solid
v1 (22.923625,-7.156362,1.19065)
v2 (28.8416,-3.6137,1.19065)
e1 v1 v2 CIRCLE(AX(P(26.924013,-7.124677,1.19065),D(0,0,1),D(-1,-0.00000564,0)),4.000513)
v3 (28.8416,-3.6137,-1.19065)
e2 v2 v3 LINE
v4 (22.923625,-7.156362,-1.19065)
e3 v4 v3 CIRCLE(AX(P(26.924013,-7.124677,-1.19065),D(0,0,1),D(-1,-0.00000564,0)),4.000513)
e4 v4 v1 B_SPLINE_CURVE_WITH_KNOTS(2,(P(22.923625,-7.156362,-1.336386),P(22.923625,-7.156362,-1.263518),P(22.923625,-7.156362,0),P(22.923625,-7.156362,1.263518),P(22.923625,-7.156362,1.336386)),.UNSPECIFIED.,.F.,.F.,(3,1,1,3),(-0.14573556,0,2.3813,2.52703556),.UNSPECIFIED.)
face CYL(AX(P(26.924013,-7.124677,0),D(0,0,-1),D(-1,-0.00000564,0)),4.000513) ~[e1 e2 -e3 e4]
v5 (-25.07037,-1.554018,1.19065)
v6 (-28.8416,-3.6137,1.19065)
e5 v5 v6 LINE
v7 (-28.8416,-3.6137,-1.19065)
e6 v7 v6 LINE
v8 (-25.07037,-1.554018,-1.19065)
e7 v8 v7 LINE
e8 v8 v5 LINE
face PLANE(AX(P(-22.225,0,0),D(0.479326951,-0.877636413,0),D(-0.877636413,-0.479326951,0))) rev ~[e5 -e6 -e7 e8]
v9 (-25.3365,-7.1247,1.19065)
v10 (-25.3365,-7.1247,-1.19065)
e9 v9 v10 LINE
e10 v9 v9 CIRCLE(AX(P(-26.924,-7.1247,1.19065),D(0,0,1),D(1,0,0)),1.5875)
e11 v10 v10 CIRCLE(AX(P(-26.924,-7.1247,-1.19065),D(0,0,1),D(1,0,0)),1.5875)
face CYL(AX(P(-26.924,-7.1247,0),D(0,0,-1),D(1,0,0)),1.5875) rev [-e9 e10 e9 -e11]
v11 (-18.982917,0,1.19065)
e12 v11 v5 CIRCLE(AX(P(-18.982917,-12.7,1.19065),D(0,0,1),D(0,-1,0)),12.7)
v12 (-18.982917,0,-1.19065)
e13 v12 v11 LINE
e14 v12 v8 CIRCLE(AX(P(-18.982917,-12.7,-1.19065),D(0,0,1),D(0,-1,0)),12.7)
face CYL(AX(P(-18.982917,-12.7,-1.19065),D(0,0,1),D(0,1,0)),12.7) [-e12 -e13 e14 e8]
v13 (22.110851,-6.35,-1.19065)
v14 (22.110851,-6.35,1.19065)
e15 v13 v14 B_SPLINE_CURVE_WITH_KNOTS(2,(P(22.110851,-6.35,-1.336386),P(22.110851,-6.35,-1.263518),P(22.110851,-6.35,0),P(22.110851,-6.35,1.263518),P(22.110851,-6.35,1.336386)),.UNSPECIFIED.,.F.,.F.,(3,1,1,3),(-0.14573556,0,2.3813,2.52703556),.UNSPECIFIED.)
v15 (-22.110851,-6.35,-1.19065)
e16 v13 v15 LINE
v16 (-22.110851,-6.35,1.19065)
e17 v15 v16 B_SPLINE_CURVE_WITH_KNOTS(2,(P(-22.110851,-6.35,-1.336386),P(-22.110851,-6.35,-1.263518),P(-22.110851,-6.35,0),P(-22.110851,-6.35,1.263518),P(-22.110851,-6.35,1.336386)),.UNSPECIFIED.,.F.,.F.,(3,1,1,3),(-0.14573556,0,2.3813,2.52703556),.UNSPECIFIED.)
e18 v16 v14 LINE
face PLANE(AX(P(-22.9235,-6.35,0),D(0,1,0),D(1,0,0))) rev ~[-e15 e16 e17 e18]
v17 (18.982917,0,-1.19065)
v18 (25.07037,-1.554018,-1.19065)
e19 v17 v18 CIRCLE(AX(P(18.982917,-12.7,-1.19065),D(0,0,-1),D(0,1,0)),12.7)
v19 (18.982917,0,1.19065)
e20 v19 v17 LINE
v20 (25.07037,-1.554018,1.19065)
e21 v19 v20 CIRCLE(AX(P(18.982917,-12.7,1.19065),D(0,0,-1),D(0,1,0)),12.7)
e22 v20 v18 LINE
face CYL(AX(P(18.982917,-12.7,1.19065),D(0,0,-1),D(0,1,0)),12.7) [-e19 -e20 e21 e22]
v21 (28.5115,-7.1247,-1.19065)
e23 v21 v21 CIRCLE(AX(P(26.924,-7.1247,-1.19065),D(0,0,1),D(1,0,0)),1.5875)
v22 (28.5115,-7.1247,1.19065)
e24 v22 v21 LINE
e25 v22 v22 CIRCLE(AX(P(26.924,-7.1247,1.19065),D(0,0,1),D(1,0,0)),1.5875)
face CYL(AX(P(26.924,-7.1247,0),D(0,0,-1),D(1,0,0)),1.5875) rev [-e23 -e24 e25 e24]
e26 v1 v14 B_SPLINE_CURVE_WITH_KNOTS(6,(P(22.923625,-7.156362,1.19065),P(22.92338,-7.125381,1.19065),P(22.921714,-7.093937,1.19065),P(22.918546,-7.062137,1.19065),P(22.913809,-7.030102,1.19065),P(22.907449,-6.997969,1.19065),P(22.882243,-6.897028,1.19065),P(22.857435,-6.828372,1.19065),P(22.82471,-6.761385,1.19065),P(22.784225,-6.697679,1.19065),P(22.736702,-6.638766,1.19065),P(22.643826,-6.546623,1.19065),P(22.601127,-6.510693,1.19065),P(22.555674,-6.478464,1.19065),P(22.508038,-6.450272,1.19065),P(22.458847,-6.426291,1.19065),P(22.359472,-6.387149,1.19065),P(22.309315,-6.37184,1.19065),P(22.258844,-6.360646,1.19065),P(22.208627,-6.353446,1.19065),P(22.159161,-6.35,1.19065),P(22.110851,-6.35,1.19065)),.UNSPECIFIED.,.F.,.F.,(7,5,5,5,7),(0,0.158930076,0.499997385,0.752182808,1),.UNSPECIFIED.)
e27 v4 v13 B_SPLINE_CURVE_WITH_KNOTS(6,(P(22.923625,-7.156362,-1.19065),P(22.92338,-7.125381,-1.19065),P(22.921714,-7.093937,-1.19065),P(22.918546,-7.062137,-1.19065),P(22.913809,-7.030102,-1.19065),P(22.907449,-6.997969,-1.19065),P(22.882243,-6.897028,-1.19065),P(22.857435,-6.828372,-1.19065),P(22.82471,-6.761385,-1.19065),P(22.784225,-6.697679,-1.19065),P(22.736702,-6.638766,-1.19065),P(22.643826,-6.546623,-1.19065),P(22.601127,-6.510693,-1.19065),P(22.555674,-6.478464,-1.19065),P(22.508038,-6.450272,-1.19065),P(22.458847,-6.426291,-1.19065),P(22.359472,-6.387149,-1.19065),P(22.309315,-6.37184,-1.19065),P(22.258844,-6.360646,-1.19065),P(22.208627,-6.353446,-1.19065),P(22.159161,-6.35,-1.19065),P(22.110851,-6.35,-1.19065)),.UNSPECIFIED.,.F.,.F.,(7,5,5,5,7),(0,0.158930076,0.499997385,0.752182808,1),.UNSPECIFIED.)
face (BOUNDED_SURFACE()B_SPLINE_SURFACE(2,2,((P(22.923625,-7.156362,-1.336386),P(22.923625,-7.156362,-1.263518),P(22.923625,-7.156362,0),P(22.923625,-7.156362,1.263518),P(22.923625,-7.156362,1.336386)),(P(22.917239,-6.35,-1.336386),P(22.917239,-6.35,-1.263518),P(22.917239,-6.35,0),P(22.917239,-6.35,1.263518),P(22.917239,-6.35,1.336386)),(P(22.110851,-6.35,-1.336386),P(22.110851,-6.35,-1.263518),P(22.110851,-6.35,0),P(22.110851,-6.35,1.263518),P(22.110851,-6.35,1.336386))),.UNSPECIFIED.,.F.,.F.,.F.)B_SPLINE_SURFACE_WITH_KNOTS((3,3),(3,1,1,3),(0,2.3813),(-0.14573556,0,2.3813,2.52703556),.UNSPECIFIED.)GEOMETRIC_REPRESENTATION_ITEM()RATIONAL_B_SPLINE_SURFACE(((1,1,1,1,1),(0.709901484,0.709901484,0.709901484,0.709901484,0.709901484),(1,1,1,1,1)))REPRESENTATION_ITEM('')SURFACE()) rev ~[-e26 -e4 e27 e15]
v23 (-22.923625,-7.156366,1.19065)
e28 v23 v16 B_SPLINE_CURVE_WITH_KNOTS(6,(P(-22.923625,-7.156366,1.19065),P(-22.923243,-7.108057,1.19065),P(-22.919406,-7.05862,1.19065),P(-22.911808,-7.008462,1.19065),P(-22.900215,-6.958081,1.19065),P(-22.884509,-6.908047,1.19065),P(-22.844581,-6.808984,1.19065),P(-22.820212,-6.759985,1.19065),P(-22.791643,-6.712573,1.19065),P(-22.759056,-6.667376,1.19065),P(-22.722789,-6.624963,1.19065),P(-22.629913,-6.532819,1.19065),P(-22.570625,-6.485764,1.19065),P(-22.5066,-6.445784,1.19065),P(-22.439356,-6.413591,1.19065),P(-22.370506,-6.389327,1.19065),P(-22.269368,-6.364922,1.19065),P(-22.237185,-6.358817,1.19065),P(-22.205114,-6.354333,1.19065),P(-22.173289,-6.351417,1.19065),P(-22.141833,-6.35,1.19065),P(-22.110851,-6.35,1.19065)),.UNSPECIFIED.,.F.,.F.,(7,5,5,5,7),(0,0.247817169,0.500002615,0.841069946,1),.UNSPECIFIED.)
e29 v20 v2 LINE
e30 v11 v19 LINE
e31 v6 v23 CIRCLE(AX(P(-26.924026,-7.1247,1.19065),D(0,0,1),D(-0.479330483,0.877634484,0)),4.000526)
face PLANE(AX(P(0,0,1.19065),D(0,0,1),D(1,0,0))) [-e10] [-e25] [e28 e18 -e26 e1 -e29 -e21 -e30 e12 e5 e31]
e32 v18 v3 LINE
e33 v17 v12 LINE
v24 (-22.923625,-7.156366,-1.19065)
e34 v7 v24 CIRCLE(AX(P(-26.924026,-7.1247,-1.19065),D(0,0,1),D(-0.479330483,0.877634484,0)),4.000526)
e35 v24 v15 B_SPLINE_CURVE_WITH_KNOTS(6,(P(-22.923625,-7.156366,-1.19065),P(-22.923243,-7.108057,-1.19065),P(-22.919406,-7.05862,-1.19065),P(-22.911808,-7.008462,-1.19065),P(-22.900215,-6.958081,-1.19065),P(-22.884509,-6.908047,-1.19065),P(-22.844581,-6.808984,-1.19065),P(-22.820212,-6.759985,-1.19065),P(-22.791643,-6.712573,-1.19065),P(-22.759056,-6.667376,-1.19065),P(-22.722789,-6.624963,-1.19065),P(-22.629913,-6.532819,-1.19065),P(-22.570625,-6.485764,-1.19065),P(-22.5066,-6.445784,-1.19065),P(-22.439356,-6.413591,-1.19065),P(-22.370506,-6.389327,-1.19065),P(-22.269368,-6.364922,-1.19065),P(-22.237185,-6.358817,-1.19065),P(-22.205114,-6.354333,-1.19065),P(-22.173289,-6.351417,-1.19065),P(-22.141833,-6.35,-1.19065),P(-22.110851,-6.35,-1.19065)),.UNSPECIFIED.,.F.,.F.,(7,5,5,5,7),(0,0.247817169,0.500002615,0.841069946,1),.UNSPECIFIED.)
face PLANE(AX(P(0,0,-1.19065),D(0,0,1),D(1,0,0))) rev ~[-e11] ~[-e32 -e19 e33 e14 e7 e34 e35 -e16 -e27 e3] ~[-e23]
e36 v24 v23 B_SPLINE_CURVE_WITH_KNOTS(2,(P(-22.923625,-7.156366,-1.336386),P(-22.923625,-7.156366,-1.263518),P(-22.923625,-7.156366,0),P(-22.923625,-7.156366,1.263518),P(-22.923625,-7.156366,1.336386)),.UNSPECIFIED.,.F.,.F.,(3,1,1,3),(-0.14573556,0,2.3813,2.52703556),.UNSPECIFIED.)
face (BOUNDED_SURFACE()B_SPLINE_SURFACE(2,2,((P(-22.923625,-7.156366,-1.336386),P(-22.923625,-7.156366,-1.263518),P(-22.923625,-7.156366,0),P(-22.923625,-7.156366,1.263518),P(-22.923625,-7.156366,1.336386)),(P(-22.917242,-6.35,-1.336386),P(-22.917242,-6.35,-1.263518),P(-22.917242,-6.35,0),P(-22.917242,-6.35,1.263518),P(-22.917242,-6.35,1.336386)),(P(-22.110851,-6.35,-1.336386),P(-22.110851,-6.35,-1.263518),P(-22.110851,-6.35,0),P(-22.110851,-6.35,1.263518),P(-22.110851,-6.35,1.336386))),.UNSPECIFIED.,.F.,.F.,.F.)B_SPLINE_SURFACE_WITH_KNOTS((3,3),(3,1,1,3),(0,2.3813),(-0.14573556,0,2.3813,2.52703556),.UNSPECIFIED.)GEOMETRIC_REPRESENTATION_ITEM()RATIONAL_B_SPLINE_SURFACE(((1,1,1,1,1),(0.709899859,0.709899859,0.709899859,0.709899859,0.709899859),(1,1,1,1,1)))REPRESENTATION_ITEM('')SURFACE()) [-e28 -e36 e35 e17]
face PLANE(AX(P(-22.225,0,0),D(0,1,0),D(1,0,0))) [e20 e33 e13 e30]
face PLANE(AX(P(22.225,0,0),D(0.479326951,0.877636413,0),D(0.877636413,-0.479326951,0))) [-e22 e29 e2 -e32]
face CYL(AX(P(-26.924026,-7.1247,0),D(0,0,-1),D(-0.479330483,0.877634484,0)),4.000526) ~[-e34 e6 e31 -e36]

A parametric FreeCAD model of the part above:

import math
import FreeCAD as App
import Part
import Sketcher
from FreeCAD import Vector
Q = App.Units.Quantity


def edges_at(feature, points):
    """Names of the edges that pass closest to the given points."""
    edges = feature.Shape.Edges
    near = lambda p: min(range(len(edges)), key=lambda i: edges[i].distToShape(Part.Vertex(*p))[0])
    return sorted({f"Edge{near(p) + 1}" for p in points})

doc = App.newDocument("Part")
body = doc.addObject("PartDesign::Body", "Body")

sketch1 = body.newObject("Sketcher::SketchObject", "Sketch")
sketch1.AttachmentSupport = (doc.getObject("XY_Plane"), [""])
sketch1.MapMode = "FlatFace"
sketch1.addGeometry([
    Part.LineSegment(Vector(-22.2, 0, 0), Vector(-28.8, -3.6, 0)),
    Part.ArcOfCircle(Part.Circle(Vector(-26.9, -7.1, 0), Vector(0, 0, 1), 4), math.radians(119), math.radians(360)),
    Part.LineSegment(Vector(-22.9, -7.1, 0), Vector(-22.9, -6.3, 0)),
    Part.LineSegment(Vector(-22.9, -6.3, 0), Vector(22.9, -6.3, 0)),
    Part.LineSegment(Vector(22.9, -6.3, 0), Vector(22.9, -7.1, 0)),
    Part.ArcOfCircle(Part.Circle(Vector(26.9, -7.1, 0), Vector(0, 0, 1), 4), math.radians(180), math.radians(421)),
    Part.LineSegment(Vector(28.8, -3.6, 0), Vector(22.2, 0, 0)),
    Part.LineSegment(Vector(22.2, 0, 0), Vector(-22.2, 0, 0)),
    Part.Circle(Vector(-26.9, -7.1, 0), Vector(0, 0, 1), 1.6),
    Part.Circle(Vector(26.9, -7.1, 0), Vector(0, 0, 1), 1.6),
], False)
sketch1.addConstraint([
    Sketcher.Constraint("Tangent", 0, 2, 1, 1),
    Sketcher.Constraint("Tangent", 1, 2, 2, 1),
    Sketcher.Constraint("Coincident", 2, 2, 3, 1),
    Sketcher.Constraint("Coincident", 3, 2, 4, 1),
    Sketcher.Constraint("Tangent", 4, 2, 5, 1),
    Sketcher.Constraint("Tangent", 5, 2, 6, 1),
    Sketcher.Constraint("Coincident", 6, 2, 7, 1),
    Sketcher.Constraint("Coincident", 7, 2, 0, 1),
    Sketcher.Constraint("Vertical", 2),
    Sketcher.Constraint("Horizontal", 3),
    Sketcher.Constraint("Vertical", 4),
    Sketcher.Constraint("Horizontal", 7),
    Sketcher.Constraint("Coincident", 8, 3, 1, 3),
    Sketcher.Constraint("Coincident", 9, 3, 5, 3),
    Sketcher.Constraint("Equal", 1, 5),
    Sketcher.Constraint("Equal", 8, 9),
    Sketcher.Constraint("Symmetric", 6, 2, 7, 2, -1, 1),
    Sketcher.Constraint("Symmetric", 1, 3, 5, 3, -2),
    Sketcher.Constraint("Diameter", 8, Q("0.125 in")),
    Sketcher.Constraint("DistanceX", 7, 2, 7, 1, Q("1.75 in")),
    Sketcher.Constraint("Radius", 1, Q("0.1575 in")),
    Sketcher.Constraint("DistanceY", 2, 2, -1, 1, Q("0.25 in")),
    Sketcher.Constraint("DistanceX", 1, 3, 5, 3, Q("2.12 in")),
    Sketcher.Constraint("DistanceY", 2, 1, 2, 2, Q("0.0305 in")),
])
pad1 = body.newObject("PartDesign::Pad", "Pad")
pad1.Profile = sketch1
pad1.Length = Q("0.093752 in")
pad1.Midplane = True
doc.recompute()

fillet = body.newObject("PartDesign::Fillet", "Fillet")
fillet.Base = (pad1, edges_at(pad1, [(-22.225, 0, 0), (22.225, 0, 0)]))
fillet.Radius = Q("0.5 in")
doc.recompute()

fillet2 = body.newObject("PartDesign::Fillet", "Fillet001")
fillet2.Base = (fillet, edges_at(fillet, [(-22.924, -6.35, 0), (22.924, -6.35, 0)]))
fillet2.Radius = Q("0.032 in")

doc.recompute()
